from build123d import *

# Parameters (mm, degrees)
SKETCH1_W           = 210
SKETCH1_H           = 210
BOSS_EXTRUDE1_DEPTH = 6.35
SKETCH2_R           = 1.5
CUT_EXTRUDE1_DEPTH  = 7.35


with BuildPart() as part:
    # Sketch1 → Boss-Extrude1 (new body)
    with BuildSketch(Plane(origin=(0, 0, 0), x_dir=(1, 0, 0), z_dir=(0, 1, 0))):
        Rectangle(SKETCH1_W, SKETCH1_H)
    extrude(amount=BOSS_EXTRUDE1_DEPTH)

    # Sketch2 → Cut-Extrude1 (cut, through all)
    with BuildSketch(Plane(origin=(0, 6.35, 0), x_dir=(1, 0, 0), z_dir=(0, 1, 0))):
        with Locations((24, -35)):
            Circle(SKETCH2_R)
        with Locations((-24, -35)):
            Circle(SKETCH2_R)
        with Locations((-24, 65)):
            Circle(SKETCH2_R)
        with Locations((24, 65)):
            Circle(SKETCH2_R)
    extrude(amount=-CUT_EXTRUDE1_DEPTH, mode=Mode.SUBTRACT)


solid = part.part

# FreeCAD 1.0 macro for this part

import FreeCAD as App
import Part
import Sketcher

doc = App.newDocument("Part")
body = doc.addObject("PartDesign::Body", "Body")

sketch1 = body.newObject("Sketcher::SketchObject", "Sketch")
sketch1.AttachmentSupport = (doc.getObject("XZ_Plane"), [""])
sketch1.MapMode = "FlatFace"
sketch1.addGeometry([
    Part.LineSegment(App.Vector(-105, -105, 0), App.Vector(-105, 105, 0)),
    Part.LineSegment(App.Vector(-105, 105, 0), App.Vector(105, 105, 0)),
    Part.LineSegment(App.Vector(105, 105, 0), App.Vector(105, -105, 0)),
    Part.LineSegment(App.Vector(105, -105, 0), App.Vector(-105, -105, 0)),
], False)
sketch1.addConstraint([
    Sketcher.Constraint("Coincident", 0, 2, 1, 1),
    Sketcher.Constraint("Coincident", 1, 2, 2, 1),
    Sketcher.Constraint("Coincident", 2, 2, 3, 1),
    Sketcher.Constraint("Coincident", 3, 2, 0, 1),
    Sketcher.Constraint("Vertical", 0),
    Sketcher.Constraint("Horizontal", 1),
    Sketcher.Constraint("Vertical", 2),
    Sketcher.Constraint("Horizontal", 3),
    Sketcher.Constraint("Symmetric", 0, 2, 2, 2, -1, 1),
    Sketcher.Constraint("Equal", 3, 0),
    Sketcher.Constraint("DistanceX", 1, 1, 1, 2, 210.0),
])
pad1 = body.newObject("PartDesign::Pad", "Pad")
pad1.Profile = sketch1
pad1.Length = 6.35
pad1.Reversed = True

sketch2 = body.newObject("Sketcher::SketchObject", "Sketch001")
sketch2.AttachmentSupport = (doc.getObject("XZ_Plane"), [""])
sketch2.MapMode = "FlatFace"
sketch2.AttachmentOffset = App.Placement(App.Vector(0, 0, -6.35), App.Rotation())
sketch2.addGeometry([
    Part.Circle(App.Vector(24, 35, 0), App.Vector(0, 0, 1), 1.5),
    Part.Circle(App.Vector(-24, 35, 0), App.Vector(0, 0, 1), 1.5),
    Part.Circle(App.Vector(-24, -65, 0), App.Vector(0, 0, 1), 1.5),
    Part.Circle(App.Vector(24, -65, 0), App.Vector(0, 0, 1), 1.5),
], False)
sketch2.addConstraint([
    Sketcher.Constraint("Equal", 0, 1),
    Sketcher.Constraint("Equal", 1, 2),
    Sketcher.Constraint("Equal", 2, 3),
    Sketcher.Constraint("Symmetric", 0, 3, 1, 3, -2),
    Sketcher.Constraint("Symmetric", 2, 3, 3, 3, -2),
    Sketcher.Constraint("Vertical", 1, 3, 2, 3),
    Sketcher.Constraint("Diameter", 0, 3.0),
    Sketcher.Constraint("DistanceX", -1, 1, 0, 3, 24.0),
    Sketcher.Constraint("DistanceY", -1, 1, 0, 3, 35.0),
    Sketcher.Constraint("DistanceY", 2, 3, -1, 1, 65.0),
])
pocket1 = body.newObject("PartDesign::Pocket", "Pocket")
pocket1.Profile = sketch2
pocket1.Type = "ThroughAll"
pocket1.Reversed = True

doc.recompute()
